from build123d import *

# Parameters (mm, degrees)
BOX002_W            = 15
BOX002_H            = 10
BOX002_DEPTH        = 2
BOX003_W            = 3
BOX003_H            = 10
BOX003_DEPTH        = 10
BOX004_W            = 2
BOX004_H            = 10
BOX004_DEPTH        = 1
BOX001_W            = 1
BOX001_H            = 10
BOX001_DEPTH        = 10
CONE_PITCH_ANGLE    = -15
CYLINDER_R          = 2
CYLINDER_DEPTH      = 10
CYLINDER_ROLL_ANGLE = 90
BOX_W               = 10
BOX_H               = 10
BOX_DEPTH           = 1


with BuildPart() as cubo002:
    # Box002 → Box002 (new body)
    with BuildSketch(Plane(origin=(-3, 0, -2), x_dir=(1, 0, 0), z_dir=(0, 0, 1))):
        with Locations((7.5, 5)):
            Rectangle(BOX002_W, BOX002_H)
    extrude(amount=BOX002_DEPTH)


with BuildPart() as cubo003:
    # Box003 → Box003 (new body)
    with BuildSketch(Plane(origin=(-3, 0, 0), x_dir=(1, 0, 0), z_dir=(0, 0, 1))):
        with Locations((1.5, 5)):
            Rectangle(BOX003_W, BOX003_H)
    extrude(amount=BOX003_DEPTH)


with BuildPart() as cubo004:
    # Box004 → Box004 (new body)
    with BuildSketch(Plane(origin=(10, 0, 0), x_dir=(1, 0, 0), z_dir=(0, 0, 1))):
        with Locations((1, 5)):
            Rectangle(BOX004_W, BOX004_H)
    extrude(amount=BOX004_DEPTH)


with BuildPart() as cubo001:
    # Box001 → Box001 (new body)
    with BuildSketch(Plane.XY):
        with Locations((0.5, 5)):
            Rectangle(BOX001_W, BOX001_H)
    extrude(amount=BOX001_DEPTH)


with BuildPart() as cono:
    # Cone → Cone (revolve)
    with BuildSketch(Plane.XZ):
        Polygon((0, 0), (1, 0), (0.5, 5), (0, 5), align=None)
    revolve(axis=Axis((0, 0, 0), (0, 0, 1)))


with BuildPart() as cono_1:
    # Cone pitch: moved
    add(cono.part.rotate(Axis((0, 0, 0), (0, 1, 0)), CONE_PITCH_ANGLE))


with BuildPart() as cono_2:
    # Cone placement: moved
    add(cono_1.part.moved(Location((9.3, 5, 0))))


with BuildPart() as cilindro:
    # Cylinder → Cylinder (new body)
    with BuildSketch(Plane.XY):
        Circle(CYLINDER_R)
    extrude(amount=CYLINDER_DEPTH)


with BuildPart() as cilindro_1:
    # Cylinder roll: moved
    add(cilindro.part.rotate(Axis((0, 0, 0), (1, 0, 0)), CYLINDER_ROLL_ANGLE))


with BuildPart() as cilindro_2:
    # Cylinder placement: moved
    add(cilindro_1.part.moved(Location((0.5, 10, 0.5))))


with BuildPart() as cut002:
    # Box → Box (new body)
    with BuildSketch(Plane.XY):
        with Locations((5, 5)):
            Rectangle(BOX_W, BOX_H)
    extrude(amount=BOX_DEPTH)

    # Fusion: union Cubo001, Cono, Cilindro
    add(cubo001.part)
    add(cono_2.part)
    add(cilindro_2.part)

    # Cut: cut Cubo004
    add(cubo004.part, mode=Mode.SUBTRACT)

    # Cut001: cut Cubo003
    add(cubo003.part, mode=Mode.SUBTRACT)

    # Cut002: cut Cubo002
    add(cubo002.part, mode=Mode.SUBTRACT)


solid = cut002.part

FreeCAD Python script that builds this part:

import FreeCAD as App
import Part
import Sketcher

doc = App.newDocument("Part")
params = doc.addObject("Spreadsheet::Sheet", "Params")
for row, (alias, value) in enumerate([
    ("sketch1_width", "15 mm"),
    ("sketch1_height", "10 mm"),
    ("pad1_length", "2 mm"),
    ("sketch2_width", "3 mm"),
    ("sketch2_height", "10 mm"),
    ("pad2_length", "10 mm"),
    ("sketch3_width", "2 mm"),
    ("sketch3_height", "10 mm"),
    ("pad3_length", "1 mm"),
    ("sketch4_width", "1 mm"),
    ("sketch4_height", "10 mm"),
    ("pad4_length", "10 mm"),
    ("sketch5_width", "1 mm"),
    ("sketch5_height", "5 mm"),
    ("sketch5_width2", "0.5 mm"),
    ("revolution_angle", "360 deg"),
    ("sketch6_diameter", "4 mm"),
    ("pad5_length", "10 mm"),
    ("sketch7_width", "10 mm"),
    ("pad6_length", "1 mm"),
], start=1):
    params.set(f"A{row}", alias)
    params.set(f"B{row}", "=" + value)
    params.setAlias(f"B{row}", alias)

body = doc.addObject("PartDesign::Body", "Body")

# Sketch on XY plane
sketch1 = body.newObject("Sketcher::SketchObject", "Sketch")
sketch1.AttachmentSupport = (doc.getObject("XY_Plane"), [""])
sketch1.MapMode = "FlatFace"
sketch1.AttachmentOffset = App.Placement(App.Vector(0, 0, -2), App.Rotation())
sketch1.addGeometry(Part.LineSegment(App.Vector(-3, 10, 0), App.Vector(-3, 0, 0)), False)
sketch1.addGeometry(Part.LineSegment(App.Vector(-3, 0, 0), App.Vector(12, 0, 0)), False)
sketch1.addGeometry(Part.LineSegment(App.Vector(12, 0, 0), App.Vector(12, 10, 0)), False)
sketch1.addGeometry(Part.LineSegment(App.Vector(12, 10, 0), App.Vector(-3, 10, 0)), False)
sketch1.addConstraint(Sketcher.Constraint("Coincident", 0, 2, 1, 1))
sketch1.addConstraint(Sketcher.Constraint("Coincident", 1, 2, 2, 1))
sketch1.addConstraint(Sketcher.Constraint("Coincident", 2, 2, 3, 1))
sketch1.addConstraint(Sketcher.Constraint("Coincident", 3, 2, 0, 1))
sketch1.addConstraint(Sketcher.Constraint("Vertical", 0))
sketch1.addConstraint(Sketcher.Constraint("Horizontal", 1))
sketch1.addConstraint(Sketcher.Constraint("Vertical", 2))
sketch1.addConstraint(Sketcher.Constraint("Horizontal", 3))
sketch1.addConstraint(Sketcher.Constraint("PointOnObject", 0, 2, -1))
sketch1.addConstraint(Sketcher.Constraint("DistanceX", 1, 1, 1, 2, 15.0))
sketch1.addConstraint(Sketcher.Constraint("DistanceY", 0, 2, 0, 1, 10.0))
sketch1.addConstraint(Sketcher.Constraint("DistanceX", 0, 2, -1, 1, 3.0))
sketch1.setExpression("Constraints[9]", "Params.sketch1_width")
sketch1.setExpression("Constraints[10]", "Params.sketch1_height")
pad1 = body.newObject("PartDesign::Pad", "Pad")
pad1.Profile = sketch1
pad1.setExpression("Length", "Params.pad1_length")
body2 = doc.addObject("PartDesign::Body", "Body001")

# Sketch on XY plane
sketch2 = body2.newObject("Sketcher::SketchObject", "Sketch001")
sketch2.AttachmentSupport = (doc.getObject("XY_Plane001"), [""])
sketch2.MapMode = "FlatFace"
sketch2.addGeometry(Part.LineSegment(App.Vector(-3, 10, 0), App.Vector(-3, 0, 0)), False)
sketch2.addGeometry(Part.LineSegment(App.Vector(-3, 0, 0), App.Vector(0, 0, 0)), False)
sketch2.addGeometry(Part.LineSegment(App.Vector(0, 0, 0), App.Vector(0, 10, 0)), False)
sketch2.addGeometry(Part.LineSegment(App.Vector(0, 10, 0), App.Vector(-3, 10, 0)), False)
sketch2.addConstraint(Sketcher.Constraint("Coincident", 0, 2, 1, 1))
sketch2.addConstraint(Sketcher.Constraint("Coincident", 1, 2, 2, 1))
sketch2.addConstraint(Sketcher.Constraint("Coincident", 2, 2, 3, 1))
sketch2.addConstraint(Sketcher.Constraint("Coincident", 3, 2, 0, 1))
sketch2.addConstraint(Sketcher.Constraint("Vertical", 0))
sketch2.addConstraint(Sketcher.Constraint("Horizontal", 1))
sketch2.addConstraint(Sketcher.Constraint("Vertical", 2))
sketch2.addConstraint(Sketcher.Constraint("Horizontal", 3))
sketch2.addConstraint(Sketcher.Constraint("Coincident", 1, 2, -1, 1))
sketch2.addConstraint(Sketcher.Constraint("DistanceX", 1, 1, 1, 2, 3.0))
sketch2.addConstraint(Sketcher.Constraint("DistanceY", 0, 2, 0, 1, 10.0))
sketch2.setExpression("Constraints[9]", "Params.sketch2_width")
sketch2.setExpression("Constraints[10]", "Params.sketch2_height")
pad2 = body2.newObject("PartDesign::Pad", "Pad001")
pad2.Profile = sketch2
pad2.setExpression("Length", "Params.pad2_length")
body3 = doc.addObject("PartDesign::Body", "Body002")

# Sketch on XY plane
sketch3 = body3.newObject("Sketcher::SketchObject", "Sketch002")
sketch3.AttachmentSupport = (doc.getObject("XY_Plane002"), [""])
sketch3.MapMode = "FlatFace"
sketch3.addGeometry(Part.LineSegment(App.Vector(10, 10, 0), App.Vector(10, 0, 0)), False)
sketch3.addGeometry(Part.LineSegment(App.Vector(10, 0, 0), App.Vector(12, 0, 0)), False)
sketch3.addGeometry(Part.LineSegment(App.Vector(12, 0, 0), App.Vector(12, 10, 0)), False)
sketch3.addGeometry(Part.LineSegment(App.Vector(12, 10, 0), App.Vector(10, 10, 0)), False)
sketch3.addConstraint(Sketcher.Constraint("Coincident", 0, 2, 1, 1))
sketch3.addConstraint(Sketcher.Constraint("Coincident", 1, 2, 2, 1))
sketch3.addConstraint(Sketcher.Constraint("Coincident", 2, 2, 3, 1))
sketch3.addConstraint(Sketcher.Constraint("Coincident", 3, 2, 0, 1))
sketch3.addConstraint(Sketcher.Constraint("Vertical", 0))
sketch3.addConstraint(Sketcher.Constraint("Horizontal", 1))
sketch3.addConstraint(Sketcher.Constraint("Vertical", 2))
sketch3.addConstraint(Sketcher.Constraint("Horizontal", 3))
sketch3.addConstraint(Sketcher.Constraint("PointOnObject", 0, 2, -1))
sketch3.addConstraint(Sketcher.Constraint("DistanceX", 1, 1, 1, 2, 2.0))
sketch3.addConstraint(Sketcher.Constraint("DistanceY", 0, 2, 0, 1, 10.0))
sketch3.addConstraint(Sketcher.Constraint("DistanceX", -1, 1, 0, 2, 10.0))
sketch3.setExpression("Constraints[9]", "Params.sketch3_width")
sketch3.setExpression("Constraints[10]", "Params.sketch3_height")
pad3 = body3.newObject("PartDesign::Pad", "Pad002")
pad3.Profile = sketch3
pad3.setExpression("Length", "Params.pad3_length")
body4 = doc.addObject("PartDesign::Body", "Body003")

# Sketch on XY plane
sketch4 = body4.newObject("Sketcher::SketchObject", "Sketch003")
sketch4.AttachmentSupport = (doc.getObject("XY_Plane003"), [""])
sketch4.MapMode = "FlatFace"
sketch4.addGeometry(Part.LineSegment(App.Vector(0, 10, 0), App.Vector(0, 0, 0)), False)
sketch4.addGeometry(Part.LineSegment(App.Vector(0, 0, 0), App.Vector(1, 0, 0)), False)
sketch4.addGeometry(Part.LineSegment(App.Vector(1, 0, 0), App.Vector(1, 10, 0)), False)
sketch4.addGeometry(Part.LineSegment(App.Vector(1, 10, 0), App.Vector(0, 10, 0)), False)
sketch4.addConstraint(Sketcher.Constraint("Coincident", 0, 2, 1, 1))
sketch4.addConstraint(Sketcher.Constraint("Coincident", 1, 2, 2, 1))
sketch4.addConstraint(Sketcher.Constraint("Coincident", 2, 2, 3, 1))
sketch4.addConstraint(Sketcher.Constraint("Coincident", 3, 2, 0, 1))
sketch4.addConstraint(Sketcher.Constraint("Vertical", 0))
sketch4.addConstraint(Sketcher.Constraint("Horizontal", 1))
sketch4.addConstraint(Sketcher.Constraint("Vertical", 2))
sketch4.addConstraint(Sketcher.Constraint("Horizontal", 3))
sketch4.addConstraint(Sketcher.Constraint("Coincident", 0, 2, -1, 1))
sketch4.addConstraint(Sketcher.Constraint("DistanceX", 1, 1, 1, 2, 1.0))
sketch4.addConstraint(Sketcher.Constraint("DistanceY", 0, 2, 0, 1, 10.0))
sketch4.setExpression("Constraints[9]", "Params.sketch4_width")
sketch4.setExpression("Constraints[10]", "Params.sketch4_height")
pad4 = body4.newObject("PartDesign::Pad", "Pad003")
pad4.Profile = sketch4
pad4.setExpression("Length", "Params.pad4_length")
body5 = doc.addObject("PartDesign::Body", "Body004")

# Sketch on XZ plane
sketch5 = body5.newObject("Sketcher::SketchObject", "Sketch004")
sketch5.AttachmentSupport = (doc.getObject("XZ_Plane004"), [""])
sketch5.MapMode = "FlatFace"
sketch5.addGeometry(Part.LineSegment(App.Vector(0, 0, 0), App.Vector(1, 0, 0)), False)
sketch5.addGeometry(Part.LineSegment(App.Vector(1, 0, 0), App.Vector(0.5, 5, 0)), False)
sketch5.addGeometry(Part.LineSegment(App.Vector(0.5, 5, 0), App.Vector(0, 5, 0)), False)
sketch5.addGeometry(Part.LineSegment(App.Vector(0, 5, 0), App.Vector(0, 0, 0)), False)
sketch5.addConstraint(Sketcher.Constraint("Coincident", 0, 2, 1, 1))
sketch5.addConstraint(Sketcher.Constraint("Coincident", 1, 2, 2, 1))
sketch5.addConstraint(Sketcher.Constraint("Coincident", 2, 2, 3, 1))
sketch5.addConstraint(Sketcher.Constraint("Coincident", 3, 2, 0, 1))
sketch5.addConstraint(Sketcher.Constraint("Horizontal", 0))
sketch5.addConstraint(Sketcher.Constraint("Horizontal", 2))
sketch5.addConstraint(Sketcher.Constraint("Vertical", 3))
sketch5.addConstraint(Sketcher.Constraint("Coincident", 3, 2, -1, 1))
sketch5.addConstraint(Sketcher.Constraint("DistanceX", 0, 1, 0, 2, 1.0))
sketch5.addConstraint(Sketcher.Constraint("DistanceY", 3, 2, 3, 1, 5.0))
sketch5.addConstraint(Sketcher.Constraint("DistanceX", 2, 2, 2, 1, 0.5))
sketch5.setExpression("Constraints[8]", "Params.sketch5_width")
sketch5.setExpression("Constraints[9]", "Params.sketch5_height")
sketch5.setExpression("Constraints[10]", "Params.sketch5_width2")
revolution = body5.newObject("PartDesign::Revolution", "Revolution")
revolution.Profile = sketch5
revolution.ReferenceAxis = (sketch5, ["V_Axis"])
revolution.setExpression("Angle", "Params.revolution_angle")
body6 = doc.addObject("PartDesign::Body", "Body005")
doc.recompute()

body5.Placement = App.Placement(App.Vector(0, 0, 0), App.Rotation(App.Vector(0, 1, 0), 345))
boolean = body6.newObject("PartDesign::Boolean", "Boolean")
boolean.Type = "Fuse"
boolean.addObjects([body5])
body7 = doc.addObject("PartDesign::Body", "Body006")
doc.recompute()

body6.Placement = App.Placement(App.Vector(9.3, 5, 0), App.Rotation(App.Vector(0, 0, 1), 0))
boolean2 = body7.newObject("PartDesign::Boolean", "Boolean001")
boolean2.Type = "Fuse"
boolean2.addObjects([body6])
body8 = doc.addObject("PartDesign::Body", "Body007")

# Sketch on XY plane
sketch6 = body8.newObject("Sketcher::SketchObject", "Sketch005")
sketch6.AttachmentSupport = (doc.getObject("XY_Plane007"), [""])
sketch6.MapMode = "FlatFace"
sketch6.addGeometry(Part.Circle(App.Vector(0, 0, 0), App.Vector(0, 0, 1), 2), False)
sketch6.addConstraint(Sketcher.Constraint("Coincident", 0, 3, -1, 1))
sketch6.addConstraint(Sketcher.Constraint("Diameter", 0, 4.0))
sketch6.setExpression("Constraints[1]", "Params.sketch6_diameter")
pad5 = body8.newObject("PartDesign::Pad", "Pad004")
pad5.Profile = sketch6
pad5.setExpression("Length", "Params.pad5_length")
body9 = doc.addObject("PartDesign::Body", "Body008")
doc.recompute()

body8.Placement = App.Placement(App.Vector(0, 0, 0), App.Rotation(App.Vector(1, 0, 0), 90))
boolean3 = body9.newObject("PartDesign::Boolean", "Boolean002")
boolean3.Type = "Fuse"
boolean3.addObjects([body8])
body10 = doc.addObject("PartDesign::Body", "Body009")
doc.recompute()

body9.Placement = App.Placement(App.Vector(0.5, 10, 0.5), App.Rotation(App.Vector(0, 0, 1), 0))
boolean4 = body10.newObject("PartDesign::Boolean", "Boolean003")
boolean4.Type = "Fuse"
boolean4.addObjects([body9])
body11 = doc.addObject("PartDesign::Body", "Body010")

# Sketch on XY plane
sketch7 = body11.newObject("Sketcher::SketchObject", "Sketch006")
sketch7.AttachmentSupport = (doc.getObject("XY_Plane010"), [""])
sketch7.MapMode = "FlatFace"
sketch7.addGeometry(Part.LineSegment(App.Vector(0, 10, 0), App.Vector(0, 0, 0)), False)
sketch7.addGeometry(Part.LineSegment(App.Vector(0, 0, 0), App.Vector(10, 0, 0)), False)
sketch7.addGeometry(Part.LineSegment(App.Vector(10, 0, 0), App.Vector(10, 10, 0)), False)
sketch7.addGeometry(Part.LineSegment(App.Vector(10, 10, 0), App.Vector(0, 10, 0)), False)
sketch7.addConstraint(Sketcher.Constraint("Coincident", 0, 2, 1, 1))
sketch7.addConstraint(Sketcher.Constraint("Coincident", 1, 2, 2, 1))
sketch7.addConstraint(Sketcher.Constraint("Coincident", 2, 2, 3, 1))
sketch7.addConstraint(Sketcher.Constraint("Coincident", 3, 2, 0, 1))
sketch7.addConstraint(Sketcher.Constraint("Vertical", 0))
sketch7.addConstraint(Sketcher.Constraint("Horizontal", 1))
sketch7.addConstraint(Sketcher.Constraint("Vertical", 2))
sketch7.addConstraint(Sketcher.Constraint("Horizontal", 3))
sketch7.addConstraint(Sketcher.Constraint("Coincident", 0, 2, -1, 1))
sketch7.addConstraint(Sketcher.Constraint("Equal", 3, 0))
sketch7.addConstraint(Sketcher.Constraint("DistanceX", 1, 1, 1, 2, 10.0))
sketch7.setExpression("Constraints[10]", "Params.sketch7_width")
pad6 = body11.newObject("PartDesign::Pad", "Pad005")
pad6.Profile = sketch7
pad6.setExpression("Length", "Params.pad6_length")
doc.recompute()

boolean5 = body11.newObject("PartDesign::Boolean", "Boolean004")
boolean5.Type = "Fuse"
boolean5.addObjects([body4])
doc.recompute()

boolean6 = body11.newObject("PartDesign::Boolean", "Boolean005")
boolean6.Type = "Fuse"
boolean6.addObjects([body7])
doc.recompute()

boolean7 = body11.newObject("PartDesign::Boolean", "Boolean006")
boolean7.Type = "Fuse"
boolean7.addObjects([body10])
doc.recompute()

boolean8 = body11.newObject("PartDesign::Boolean", "Boolean007")
boolean8.Type = "Cut"
boolean8.addObjects([body3])
doc.recompute()

boolean9 = body11.newObject("PartDesign::Boolean", "Boolean008")
boolean9.Type = "Cut"
boolean9.addObjects([body2])
doc.recompute()

boolean10 = body11.newObject("PartDesign::Boolean", "Boolean009")
boolean10.Type = "Cut"
boolean10.addObjects([body])

doc.recompute()
